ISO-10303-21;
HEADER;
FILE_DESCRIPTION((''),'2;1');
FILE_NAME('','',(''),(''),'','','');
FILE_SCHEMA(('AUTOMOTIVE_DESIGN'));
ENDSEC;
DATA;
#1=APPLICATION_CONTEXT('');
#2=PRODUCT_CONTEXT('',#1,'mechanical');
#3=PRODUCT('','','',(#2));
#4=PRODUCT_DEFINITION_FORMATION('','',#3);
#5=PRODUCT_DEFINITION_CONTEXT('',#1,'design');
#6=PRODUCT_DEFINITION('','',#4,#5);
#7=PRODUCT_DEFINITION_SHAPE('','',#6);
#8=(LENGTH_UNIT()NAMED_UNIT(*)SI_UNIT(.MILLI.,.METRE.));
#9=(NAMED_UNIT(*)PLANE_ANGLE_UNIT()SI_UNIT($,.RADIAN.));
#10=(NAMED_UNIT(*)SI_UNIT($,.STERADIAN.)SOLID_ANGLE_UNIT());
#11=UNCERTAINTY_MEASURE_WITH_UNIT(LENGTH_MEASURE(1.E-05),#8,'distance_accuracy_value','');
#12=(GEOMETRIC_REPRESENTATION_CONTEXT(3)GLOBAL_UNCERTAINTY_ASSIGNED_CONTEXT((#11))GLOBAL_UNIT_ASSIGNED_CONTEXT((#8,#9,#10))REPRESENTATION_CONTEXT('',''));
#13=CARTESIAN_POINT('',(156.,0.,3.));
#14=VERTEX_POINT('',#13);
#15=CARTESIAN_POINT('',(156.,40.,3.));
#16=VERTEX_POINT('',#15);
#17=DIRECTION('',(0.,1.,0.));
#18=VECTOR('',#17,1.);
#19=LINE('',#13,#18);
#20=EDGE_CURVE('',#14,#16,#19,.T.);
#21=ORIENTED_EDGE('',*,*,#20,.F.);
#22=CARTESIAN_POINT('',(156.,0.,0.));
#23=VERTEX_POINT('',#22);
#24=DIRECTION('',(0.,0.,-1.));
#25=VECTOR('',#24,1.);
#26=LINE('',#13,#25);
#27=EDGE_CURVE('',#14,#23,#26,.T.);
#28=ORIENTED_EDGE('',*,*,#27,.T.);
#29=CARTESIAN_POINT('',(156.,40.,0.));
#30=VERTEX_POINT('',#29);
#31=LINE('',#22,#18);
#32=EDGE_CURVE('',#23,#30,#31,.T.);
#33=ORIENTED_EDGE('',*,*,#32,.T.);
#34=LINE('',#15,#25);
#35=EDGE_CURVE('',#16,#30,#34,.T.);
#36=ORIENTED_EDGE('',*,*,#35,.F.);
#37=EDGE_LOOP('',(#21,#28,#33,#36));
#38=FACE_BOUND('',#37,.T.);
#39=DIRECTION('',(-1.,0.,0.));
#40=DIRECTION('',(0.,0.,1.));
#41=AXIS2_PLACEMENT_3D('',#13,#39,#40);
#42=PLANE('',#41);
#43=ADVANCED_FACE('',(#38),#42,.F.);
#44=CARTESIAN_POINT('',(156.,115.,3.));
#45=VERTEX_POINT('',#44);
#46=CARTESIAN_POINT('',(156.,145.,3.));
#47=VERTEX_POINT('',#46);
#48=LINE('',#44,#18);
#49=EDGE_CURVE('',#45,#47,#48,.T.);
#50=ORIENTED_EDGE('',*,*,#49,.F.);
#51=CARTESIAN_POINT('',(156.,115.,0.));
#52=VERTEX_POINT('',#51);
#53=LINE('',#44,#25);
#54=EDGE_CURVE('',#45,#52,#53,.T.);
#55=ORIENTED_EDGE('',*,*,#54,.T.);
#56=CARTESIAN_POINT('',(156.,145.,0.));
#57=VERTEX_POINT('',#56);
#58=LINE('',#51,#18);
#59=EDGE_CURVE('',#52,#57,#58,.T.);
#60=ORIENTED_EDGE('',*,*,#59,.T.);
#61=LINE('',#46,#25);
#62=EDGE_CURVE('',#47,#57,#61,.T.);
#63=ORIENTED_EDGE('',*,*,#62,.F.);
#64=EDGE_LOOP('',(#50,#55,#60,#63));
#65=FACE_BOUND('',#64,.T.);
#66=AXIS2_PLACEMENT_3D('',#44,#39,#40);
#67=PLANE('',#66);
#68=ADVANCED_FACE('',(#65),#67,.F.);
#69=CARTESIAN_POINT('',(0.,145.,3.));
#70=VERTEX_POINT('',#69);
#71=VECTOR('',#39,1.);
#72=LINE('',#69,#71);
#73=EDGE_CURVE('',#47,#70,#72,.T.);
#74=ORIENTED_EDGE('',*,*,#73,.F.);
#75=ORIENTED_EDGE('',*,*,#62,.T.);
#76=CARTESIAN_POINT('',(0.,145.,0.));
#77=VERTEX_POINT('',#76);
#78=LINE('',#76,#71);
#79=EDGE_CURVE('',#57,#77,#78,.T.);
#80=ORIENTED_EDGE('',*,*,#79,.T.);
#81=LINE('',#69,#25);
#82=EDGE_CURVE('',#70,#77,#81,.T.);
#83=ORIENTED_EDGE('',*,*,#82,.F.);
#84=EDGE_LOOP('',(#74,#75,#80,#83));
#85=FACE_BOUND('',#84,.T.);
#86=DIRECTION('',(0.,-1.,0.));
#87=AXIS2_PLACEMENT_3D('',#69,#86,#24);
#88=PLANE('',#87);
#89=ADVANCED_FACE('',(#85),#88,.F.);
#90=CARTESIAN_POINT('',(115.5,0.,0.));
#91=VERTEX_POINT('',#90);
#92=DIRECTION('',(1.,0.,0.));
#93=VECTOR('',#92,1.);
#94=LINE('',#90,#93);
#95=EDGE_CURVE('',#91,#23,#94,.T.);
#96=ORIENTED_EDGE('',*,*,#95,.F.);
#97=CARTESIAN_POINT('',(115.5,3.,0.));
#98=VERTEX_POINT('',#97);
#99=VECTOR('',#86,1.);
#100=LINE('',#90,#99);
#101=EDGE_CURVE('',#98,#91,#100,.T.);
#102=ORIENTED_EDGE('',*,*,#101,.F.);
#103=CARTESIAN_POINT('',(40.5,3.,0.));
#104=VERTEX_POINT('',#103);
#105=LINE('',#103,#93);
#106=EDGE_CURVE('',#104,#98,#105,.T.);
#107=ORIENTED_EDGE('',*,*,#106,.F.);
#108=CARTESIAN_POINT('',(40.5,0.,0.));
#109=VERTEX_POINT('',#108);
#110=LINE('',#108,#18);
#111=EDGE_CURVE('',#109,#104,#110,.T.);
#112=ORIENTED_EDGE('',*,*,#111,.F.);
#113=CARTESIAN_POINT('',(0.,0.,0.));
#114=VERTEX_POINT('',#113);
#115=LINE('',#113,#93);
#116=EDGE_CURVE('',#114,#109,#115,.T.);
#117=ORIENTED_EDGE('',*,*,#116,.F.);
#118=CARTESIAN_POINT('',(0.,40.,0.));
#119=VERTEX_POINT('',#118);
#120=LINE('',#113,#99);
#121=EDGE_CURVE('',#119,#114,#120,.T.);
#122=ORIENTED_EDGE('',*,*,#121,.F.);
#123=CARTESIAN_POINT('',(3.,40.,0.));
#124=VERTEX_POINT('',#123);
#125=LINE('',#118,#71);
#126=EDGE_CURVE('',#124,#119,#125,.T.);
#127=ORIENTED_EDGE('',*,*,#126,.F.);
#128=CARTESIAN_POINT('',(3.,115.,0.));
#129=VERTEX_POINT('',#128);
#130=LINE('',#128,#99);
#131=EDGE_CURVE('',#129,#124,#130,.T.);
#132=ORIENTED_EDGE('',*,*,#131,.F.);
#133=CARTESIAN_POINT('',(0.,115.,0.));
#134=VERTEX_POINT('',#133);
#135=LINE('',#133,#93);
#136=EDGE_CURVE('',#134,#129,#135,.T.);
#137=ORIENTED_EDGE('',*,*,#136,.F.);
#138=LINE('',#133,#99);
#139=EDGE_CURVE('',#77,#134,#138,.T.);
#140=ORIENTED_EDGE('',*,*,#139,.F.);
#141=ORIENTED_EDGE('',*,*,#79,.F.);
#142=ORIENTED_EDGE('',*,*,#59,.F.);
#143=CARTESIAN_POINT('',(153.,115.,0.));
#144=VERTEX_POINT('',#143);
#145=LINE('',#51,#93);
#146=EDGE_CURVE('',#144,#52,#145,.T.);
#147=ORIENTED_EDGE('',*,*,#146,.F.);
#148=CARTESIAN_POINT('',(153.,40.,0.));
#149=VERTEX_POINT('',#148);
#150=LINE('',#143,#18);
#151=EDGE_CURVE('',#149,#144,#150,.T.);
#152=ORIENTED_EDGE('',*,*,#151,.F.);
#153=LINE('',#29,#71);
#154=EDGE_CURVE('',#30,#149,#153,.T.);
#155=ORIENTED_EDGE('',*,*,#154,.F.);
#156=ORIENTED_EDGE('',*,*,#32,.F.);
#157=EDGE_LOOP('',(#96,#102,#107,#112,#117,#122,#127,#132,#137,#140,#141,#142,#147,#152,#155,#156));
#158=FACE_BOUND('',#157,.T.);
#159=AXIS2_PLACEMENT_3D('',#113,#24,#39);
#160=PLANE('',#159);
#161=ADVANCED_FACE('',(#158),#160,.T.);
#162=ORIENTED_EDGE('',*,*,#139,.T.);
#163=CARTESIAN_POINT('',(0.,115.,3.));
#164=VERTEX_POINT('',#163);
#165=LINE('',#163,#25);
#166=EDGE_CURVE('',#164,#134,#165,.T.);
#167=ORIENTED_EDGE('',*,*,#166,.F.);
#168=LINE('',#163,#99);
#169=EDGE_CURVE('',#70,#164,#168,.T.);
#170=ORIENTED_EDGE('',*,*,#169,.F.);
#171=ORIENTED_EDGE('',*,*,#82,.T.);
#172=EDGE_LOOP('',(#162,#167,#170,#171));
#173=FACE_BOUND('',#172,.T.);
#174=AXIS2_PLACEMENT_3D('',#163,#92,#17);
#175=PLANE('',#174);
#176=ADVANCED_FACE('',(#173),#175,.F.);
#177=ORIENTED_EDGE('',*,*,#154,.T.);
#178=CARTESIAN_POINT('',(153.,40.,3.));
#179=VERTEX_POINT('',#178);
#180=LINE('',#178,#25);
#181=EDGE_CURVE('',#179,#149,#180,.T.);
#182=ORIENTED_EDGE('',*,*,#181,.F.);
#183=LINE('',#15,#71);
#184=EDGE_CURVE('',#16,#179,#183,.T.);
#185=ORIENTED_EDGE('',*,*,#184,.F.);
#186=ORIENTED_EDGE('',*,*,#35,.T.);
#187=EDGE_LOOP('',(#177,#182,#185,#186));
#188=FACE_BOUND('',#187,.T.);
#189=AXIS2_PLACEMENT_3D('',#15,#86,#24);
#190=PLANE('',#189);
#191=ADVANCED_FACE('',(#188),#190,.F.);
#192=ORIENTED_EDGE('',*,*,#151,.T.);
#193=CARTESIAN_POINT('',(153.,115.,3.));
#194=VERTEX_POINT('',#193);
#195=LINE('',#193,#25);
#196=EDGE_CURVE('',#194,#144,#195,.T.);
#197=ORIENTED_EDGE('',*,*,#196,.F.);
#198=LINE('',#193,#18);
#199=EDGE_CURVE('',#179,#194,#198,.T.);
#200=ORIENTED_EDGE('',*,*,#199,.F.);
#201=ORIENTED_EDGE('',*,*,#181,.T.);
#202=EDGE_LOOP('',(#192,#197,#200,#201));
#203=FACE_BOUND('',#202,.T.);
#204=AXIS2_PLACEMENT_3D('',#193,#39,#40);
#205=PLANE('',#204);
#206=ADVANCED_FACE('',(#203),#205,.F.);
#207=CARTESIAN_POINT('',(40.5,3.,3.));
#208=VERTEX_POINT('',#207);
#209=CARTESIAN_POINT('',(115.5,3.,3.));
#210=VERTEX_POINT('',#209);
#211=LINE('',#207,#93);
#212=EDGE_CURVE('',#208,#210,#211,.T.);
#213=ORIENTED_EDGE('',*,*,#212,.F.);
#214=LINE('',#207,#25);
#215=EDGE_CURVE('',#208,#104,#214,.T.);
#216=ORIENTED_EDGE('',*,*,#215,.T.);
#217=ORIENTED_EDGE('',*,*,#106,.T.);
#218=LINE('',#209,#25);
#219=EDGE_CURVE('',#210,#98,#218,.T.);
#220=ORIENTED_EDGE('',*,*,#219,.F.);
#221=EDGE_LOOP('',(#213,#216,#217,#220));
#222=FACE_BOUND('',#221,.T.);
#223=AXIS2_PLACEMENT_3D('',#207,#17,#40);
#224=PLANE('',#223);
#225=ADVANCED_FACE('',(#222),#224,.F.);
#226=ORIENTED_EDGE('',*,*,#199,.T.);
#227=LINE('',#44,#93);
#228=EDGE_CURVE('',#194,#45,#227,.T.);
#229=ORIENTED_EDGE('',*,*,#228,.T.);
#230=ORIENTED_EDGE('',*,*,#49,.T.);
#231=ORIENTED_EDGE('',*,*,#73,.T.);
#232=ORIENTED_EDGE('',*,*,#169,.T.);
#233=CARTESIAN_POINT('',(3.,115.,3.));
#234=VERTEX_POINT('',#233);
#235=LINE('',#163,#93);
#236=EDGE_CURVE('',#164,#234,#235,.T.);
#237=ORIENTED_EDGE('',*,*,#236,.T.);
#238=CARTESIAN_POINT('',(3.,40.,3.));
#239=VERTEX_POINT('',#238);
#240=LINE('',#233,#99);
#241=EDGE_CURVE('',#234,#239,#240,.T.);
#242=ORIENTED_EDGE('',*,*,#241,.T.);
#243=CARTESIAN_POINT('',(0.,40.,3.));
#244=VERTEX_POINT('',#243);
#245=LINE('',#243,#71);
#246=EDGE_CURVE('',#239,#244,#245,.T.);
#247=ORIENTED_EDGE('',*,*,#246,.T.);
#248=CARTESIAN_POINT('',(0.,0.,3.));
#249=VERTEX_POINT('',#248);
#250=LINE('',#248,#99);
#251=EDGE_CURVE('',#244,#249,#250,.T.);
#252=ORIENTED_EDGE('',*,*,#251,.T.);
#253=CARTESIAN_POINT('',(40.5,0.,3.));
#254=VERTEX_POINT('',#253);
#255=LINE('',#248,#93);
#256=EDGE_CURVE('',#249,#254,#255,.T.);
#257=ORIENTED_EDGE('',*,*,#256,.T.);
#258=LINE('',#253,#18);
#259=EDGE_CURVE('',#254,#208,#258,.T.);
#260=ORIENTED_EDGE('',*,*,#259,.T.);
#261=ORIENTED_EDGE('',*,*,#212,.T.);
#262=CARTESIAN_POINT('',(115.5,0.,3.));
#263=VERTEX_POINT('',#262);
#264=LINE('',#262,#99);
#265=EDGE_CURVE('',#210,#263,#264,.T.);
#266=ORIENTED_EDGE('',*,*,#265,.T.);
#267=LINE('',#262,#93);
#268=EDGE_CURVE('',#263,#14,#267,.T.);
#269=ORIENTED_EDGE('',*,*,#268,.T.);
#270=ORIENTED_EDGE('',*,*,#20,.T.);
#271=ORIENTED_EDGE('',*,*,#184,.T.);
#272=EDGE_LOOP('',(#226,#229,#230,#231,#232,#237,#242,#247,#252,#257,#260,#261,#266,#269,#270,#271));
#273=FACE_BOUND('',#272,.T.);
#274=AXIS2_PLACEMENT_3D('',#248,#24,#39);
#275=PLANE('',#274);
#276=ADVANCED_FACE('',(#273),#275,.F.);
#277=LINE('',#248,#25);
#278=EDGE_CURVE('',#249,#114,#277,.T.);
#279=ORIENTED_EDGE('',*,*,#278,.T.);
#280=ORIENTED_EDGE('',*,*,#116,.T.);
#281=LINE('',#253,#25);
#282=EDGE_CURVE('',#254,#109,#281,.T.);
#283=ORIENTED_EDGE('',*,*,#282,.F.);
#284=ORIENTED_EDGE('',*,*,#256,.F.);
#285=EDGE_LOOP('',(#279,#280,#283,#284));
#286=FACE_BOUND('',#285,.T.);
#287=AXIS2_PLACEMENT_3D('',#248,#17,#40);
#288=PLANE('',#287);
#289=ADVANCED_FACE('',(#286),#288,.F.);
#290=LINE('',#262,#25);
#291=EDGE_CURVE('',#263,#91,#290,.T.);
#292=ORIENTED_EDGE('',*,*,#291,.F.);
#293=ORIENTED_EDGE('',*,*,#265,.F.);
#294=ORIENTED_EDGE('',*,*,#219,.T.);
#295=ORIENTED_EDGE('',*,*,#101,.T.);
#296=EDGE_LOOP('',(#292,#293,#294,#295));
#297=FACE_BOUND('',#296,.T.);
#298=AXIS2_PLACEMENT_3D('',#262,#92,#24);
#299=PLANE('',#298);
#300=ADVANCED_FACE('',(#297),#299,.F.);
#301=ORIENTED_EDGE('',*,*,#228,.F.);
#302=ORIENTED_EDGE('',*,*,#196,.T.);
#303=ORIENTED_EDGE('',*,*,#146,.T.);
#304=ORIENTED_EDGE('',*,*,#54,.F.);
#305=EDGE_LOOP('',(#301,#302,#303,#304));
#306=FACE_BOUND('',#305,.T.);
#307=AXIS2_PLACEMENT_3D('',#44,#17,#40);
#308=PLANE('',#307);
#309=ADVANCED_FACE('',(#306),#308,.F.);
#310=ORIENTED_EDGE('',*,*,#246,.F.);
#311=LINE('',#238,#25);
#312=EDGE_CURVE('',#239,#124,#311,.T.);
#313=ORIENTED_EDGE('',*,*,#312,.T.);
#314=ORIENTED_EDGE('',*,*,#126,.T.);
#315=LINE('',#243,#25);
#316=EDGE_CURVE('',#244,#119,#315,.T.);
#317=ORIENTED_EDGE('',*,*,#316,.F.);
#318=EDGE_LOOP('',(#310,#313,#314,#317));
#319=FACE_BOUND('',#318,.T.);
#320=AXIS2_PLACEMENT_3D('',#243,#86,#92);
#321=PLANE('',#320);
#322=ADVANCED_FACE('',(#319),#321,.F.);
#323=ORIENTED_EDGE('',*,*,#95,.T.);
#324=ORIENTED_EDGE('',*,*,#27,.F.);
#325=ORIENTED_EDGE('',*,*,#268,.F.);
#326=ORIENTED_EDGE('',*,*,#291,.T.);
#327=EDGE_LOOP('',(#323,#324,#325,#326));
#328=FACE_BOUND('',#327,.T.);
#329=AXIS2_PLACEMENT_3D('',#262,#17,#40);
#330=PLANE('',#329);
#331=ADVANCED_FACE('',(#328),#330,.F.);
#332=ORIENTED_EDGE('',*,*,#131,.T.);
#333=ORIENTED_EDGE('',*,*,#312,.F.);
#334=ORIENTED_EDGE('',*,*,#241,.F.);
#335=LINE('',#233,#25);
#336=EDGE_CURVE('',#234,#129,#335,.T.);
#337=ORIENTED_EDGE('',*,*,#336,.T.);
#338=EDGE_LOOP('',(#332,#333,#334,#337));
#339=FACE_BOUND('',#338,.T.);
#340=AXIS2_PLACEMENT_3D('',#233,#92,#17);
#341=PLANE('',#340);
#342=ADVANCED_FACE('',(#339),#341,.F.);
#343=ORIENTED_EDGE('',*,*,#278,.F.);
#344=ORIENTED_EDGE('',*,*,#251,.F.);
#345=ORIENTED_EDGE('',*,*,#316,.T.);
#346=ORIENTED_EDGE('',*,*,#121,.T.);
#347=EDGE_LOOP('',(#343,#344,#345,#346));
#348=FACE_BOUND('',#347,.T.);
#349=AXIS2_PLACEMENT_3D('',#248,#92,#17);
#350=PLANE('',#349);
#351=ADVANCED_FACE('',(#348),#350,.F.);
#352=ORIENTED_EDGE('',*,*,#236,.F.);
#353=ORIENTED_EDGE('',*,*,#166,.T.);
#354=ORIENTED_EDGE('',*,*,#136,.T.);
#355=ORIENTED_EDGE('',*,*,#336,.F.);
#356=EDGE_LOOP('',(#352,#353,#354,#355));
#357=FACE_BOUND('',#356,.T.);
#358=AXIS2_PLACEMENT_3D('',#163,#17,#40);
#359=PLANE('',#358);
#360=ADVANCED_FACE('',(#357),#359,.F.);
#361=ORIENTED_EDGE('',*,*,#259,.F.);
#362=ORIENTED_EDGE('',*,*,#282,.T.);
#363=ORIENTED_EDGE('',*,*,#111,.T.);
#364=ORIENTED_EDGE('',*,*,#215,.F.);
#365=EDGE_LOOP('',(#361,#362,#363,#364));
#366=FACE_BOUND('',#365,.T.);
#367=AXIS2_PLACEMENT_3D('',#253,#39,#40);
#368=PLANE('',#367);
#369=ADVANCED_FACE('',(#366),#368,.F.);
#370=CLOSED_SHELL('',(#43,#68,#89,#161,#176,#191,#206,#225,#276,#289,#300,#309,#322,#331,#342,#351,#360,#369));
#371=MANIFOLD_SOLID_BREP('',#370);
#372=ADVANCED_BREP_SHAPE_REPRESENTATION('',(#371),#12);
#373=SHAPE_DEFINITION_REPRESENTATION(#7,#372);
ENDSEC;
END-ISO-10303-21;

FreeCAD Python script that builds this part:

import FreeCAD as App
import Part
import Sketcher

V = App.Vector


def add_polygon(sketch, points):
    """Adds a closed chain of lines whose ends are joined by coincident constraints."""
    first, n = sketch.GeometryCount, len(points)
    for a, b in zip(points, points[1:] + points[:1]):
        sketch.addGeometry(Part.LineSegment(App.Vector(*a, 0), App.Vector(*b, 0)), False)
    for i in range(n):
        sketch.addConstraint(Sketcher.Constraint("Coincident", first + i, 2, first + (i + 1) % n, 1))

doc = App.newDocument("Part")
body = doc.addObject("PartDesign::Body", "Body")

# Sketch on XY plane
sketch1 = body.newObject("Sketcher::SketchObject", "Sketch")
sketch1.AttachmentSupport = (doc.getObject("XY_Plane"), [""])
sketch1.MapMode = "FlatFace"
add_polygon(sketch1, [(0, 145), (0, 115), (3, 115), (3, 40), (0, 40), (0, 0), (40.5, 0), (40.5, 3), (115.5, 3), (115.5, 0), (156, 0), (156, 40), (153, 40), (153, 115), (156, 115), (156, 145)])  # lines 0-15
sketch1.addConstraint([
    Sketcher.Constraint("Vertical", 0),
    Sketcher.Constraint("Horizontal", 1),
    Sketcher.Constraint("Vertical", 2),
    Sketcher.Constraint("Horizontal", 3),
    Sketcher.Constraint("Vertical", 4),
    Sketcher.Constraint("Horizontal", 5),
    Sketcher.Constraint("Vertical", 6),
    Sketcher.Constraint("Horizontal", 7),
    Sketcher.Constraint("Vertical", 8),
    Sketcher.Constraint("Horizontal", 9),
    Sketcher.Constraint("Vertical", 10),
    Sketcher.Constraint("Horizontal", 11),
    Sketcher.Constraint("Vertical", 12),
    Sketcher.Constraint("Horizontal", 13),
    Sketcher.Constraint("Vertical", 14),
    Sketcher.Constraint("Horizontal", 15),
    Sketcher.Constraint("Coincident", 4, 2, -1, 1),
    Sketcher.Constraint("PointOnObject", 0, 2, -2),
    Sketcher.Constraint("PointOnObject", 8, 2, -1),
    Sketcher.Constraint("Horizontal", 3, 2, 10, 2),
    Sketcher.Constraint("Horizontal", 1, 2, 12, 2),
    Sketcher.Constraint("Vertical", 10, 2, 13, 2),
    Sketcher.Constraint("Equal", 5, 9),
    Sketcher.Constraint("Equal", 3, 11),
    Sketcher.Constraint("Equal", 7, 2),
    Sketcher.Constraint("Equal", 13, 6),
    Sketcher.Constraint("DistanceX", 1, 1, 1, 2, 3.0),
    Sketcher.Constraint("DistanceX", 7, 1, 7, 2, 75.0),
    Sketcher.Constraint("DistanceX", 15, 2, 15, 1, 156.0),
    Sketcher.Constraint("DistanceY", 0, 2, 0, 1, 30.0),
    Sketcher.Constraint("DistanceY", 4, 2, 4, 1, 40.0),
])
pad1 = body.newObject("PartDesign::Pad", "Pad")
pad1.Profile = sketch1
pad1.Length = 3

doc.recompute()
